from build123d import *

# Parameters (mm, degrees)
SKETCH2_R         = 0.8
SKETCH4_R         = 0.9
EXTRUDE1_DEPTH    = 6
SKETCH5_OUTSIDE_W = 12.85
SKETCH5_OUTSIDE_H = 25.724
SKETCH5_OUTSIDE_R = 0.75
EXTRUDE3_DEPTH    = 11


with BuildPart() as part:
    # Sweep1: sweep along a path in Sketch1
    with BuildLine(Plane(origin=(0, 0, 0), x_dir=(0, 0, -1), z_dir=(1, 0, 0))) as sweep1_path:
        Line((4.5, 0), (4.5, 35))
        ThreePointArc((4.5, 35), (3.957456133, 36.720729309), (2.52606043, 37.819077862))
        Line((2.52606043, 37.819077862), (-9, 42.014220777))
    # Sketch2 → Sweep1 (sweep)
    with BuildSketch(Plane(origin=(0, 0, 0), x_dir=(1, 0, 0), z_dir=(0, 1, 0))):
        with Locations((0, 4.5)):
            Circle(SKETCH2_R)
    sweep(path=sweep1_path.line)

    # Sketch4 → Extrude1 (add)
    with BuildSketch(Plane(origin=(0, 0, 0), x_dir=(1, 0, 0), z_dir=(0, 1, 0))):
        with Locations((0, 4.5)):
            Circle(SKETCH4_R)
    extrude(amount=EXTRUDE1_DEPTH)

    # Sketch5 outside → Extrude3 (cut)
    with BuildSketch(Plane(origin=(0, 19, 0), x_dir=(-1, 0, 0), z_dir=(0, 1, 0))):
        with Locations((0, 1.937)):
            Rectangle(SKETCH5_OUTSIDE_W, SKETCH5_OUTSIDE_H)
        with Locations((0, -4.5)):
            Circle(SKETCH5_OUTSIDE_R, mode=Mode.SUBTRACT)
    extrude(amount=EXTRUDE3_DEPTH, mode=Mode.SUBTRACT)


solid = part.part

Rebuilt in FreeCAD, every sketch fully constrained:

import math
import FreeCAD as App
import Part
import Sketcher

V = App.Vector
Q = App.Units.Quantity

doc = App.newDocument("Part")
body = doc.addObject("PartDesign::Body", "Body")

# Sketch on XZ plane
sketch1 = body.newObject("Sketcher::SketchObject", "Sketch")
sketch1.AttachmentSupport = (doc.getObject("XZ_Plane"), [""])
sketch1.MapMode = "FlatFace"
sketch1.addGeometry(Part.Circle(V(0, -4.5, 0), V(0, 0, 1), 0.8), False)
sketch1.addConstraint([
    Sketcher.Constraint("PointOnObject", 0, 3, -2),
    Sketcher.Constraint("Diameter", 0, Q("1.6 mm")),
    Sketcher.Constraint("DistanceY", 0, 3, -1, 1, Q("4.5 mm")),
])

# Sketch on YZ plane
sketch2 = body.newObject("Sketcher::SketchObject", "Sketch001")
sketch2.AttachmentSupport = (doc.getObject("YZ_Plane"), [""])
sketch2.MapMode = "FlatFace"
sketch2.addGeometry([
    Part.LineSegment(V(0, -4.5, 0), V(35, -4.5, 0)),
    Part.ArcOfCircle(Part.Circle(V(35, -1.5, 0), V(0, 0, 1), 3), math.radians(-90), math.radians(-20)),
    Part.LineSegment(V(37.819078, -2.52606, 0), V(42.014221, 9, 0)),
], False)
sketch2.addConstraint([
    Sketcher.Constraint("Tangent", 0, 2, 1, 1),
    Sketcher.Constraint("Tangent", 1, 2, 2, 1),
    Sketcher.Constraint("Horizontal", 0),
    Sketcher.Constraint("PointOnObject", 0, 1, -2),
    Sketcher.Constraint("Radius", 1, Q("3 mm")),
    Sketcher.Constraint("DistanceX", 0, 1, 0, 2, Q("35 mm")),
    Sketcher.Constraint("Angle", 2, Q("70 deg")),
    Sketcher.Constraint("DistanceY", -1, 1, 2, 2, Q("9 mm")),
    Sketcher.Constraint("DistanceY", 1, 3, -1, 1, Q("1.5 mm")),
])
doc.recompute()

additivepipe = body.newObject("PartDesign::AdditivePipe", "AdditivePipe")
additivepipe.Profile = sketch1
additivepipe.Spine = (sketch2, ["Edge1", "Edge2", "Edge3"])

# Sketch on XZ plane
sketch3 = body.newObject("Sketcher::SketchObject", "Sketch002")
sketch3.AttachmentSupport = (doc.getObject("XZ_Plane"), [""])
sketch3.MapMode = "FlatFace"
sketch3.addGeometry(Part.Circle(V(0, -4.5, 0), V(0, 0, 1), 0.9), False)
sketch3.addConstraint([
    Sketcher.Constraint("PointOnObject", 0, 3, -2),
    Sketcher.Constraint("Diameter", 0, Q("1.8 mm")),
    Sketcher.Constraint("DistanceY", 0, 3, -1, 1, Q("4.5 mm")),
])
pad1 = body.newObject("PartDesign::Pad", "Pad")
pad1.Profile = sketch3
pad1.Length = 6
pad1.Reversed = True

# Sketch on XZ plane
sketch4 = body.newObject("Sketcher::SketchObject", "Sketch003")
sketch4.AttachmentSupport = (doc.getObject("XZ_Plane"), [""])
sketch4.MapMode = "FlatFace"
sketch4.AttachmentOffset = App.Placement(V(0, 0, -19), App.Rotation())
sketch4.addGeometry([
    Part.LineSegment(V(6.425, 14.799, 0), V(6.425, -10.925, 0)),  # 0
    Part.LineSegment(V(6.425, -10.925, 0), V(-6.425, -10.925, 0)),  # 1
    Part.LineSegment(V(-6.425, -10.925, 0), V(-6.425, 14.799, 0)),  # 2
    Part.LineSegment(V(-6.425, 14.799, 0), V(6.425, 14.799, 0)),  # 3
    Part.Circle(V(0, -4.5, 0), V(0, 0, 1), 0.75),  # 4
], False)
sketch4.addConstraint([
    Sketcher.Constraint("Coincident", 0, 2, 1, 1),
    Sketcher.Constraint("Coincident", 1, 2, 2, 1),
    Sketcher.Constraint("Coincident", 2, 2, 3, 1),
    Sketcher.Constraint("Coincident", 3, 2, 0, 1),
    Sketcher.Constraint("Vertical", 0),
    Sketcher.Constraint("Horizontal", 1),
    Sketcher.Constraint("Vertical", 2),
    Sketcher.Constraint("Horizontal", 3),
    Sketcher.Constraint("PointOnObject", 4, 3, -2),
    Sketcher.Constraint("Diameter", 4, Q("1.5 mm")),
    Sketcher.Constraint("DistanceX", 1, 2, 1, 1, Q("12.85 mm")),
    Sketcher.Constraint("DistanceY", 4, 3, -1, 1, Q("4.5 mm")),
    Sketcher.Constraint("DistanceY", 0, 2, 0, 1, Q("25.724 mm")),
    Sketcher.Constraint("DistanceX", -1, 1, 0, 2, Q("6.425 mm")),
    Sketcher.Constraint("DistanceY", 0, 2, -1, 1, Q("10.925 mm")),
])
pocket1 = body.newObject("PartDesign::Pocket", "Pocket")
pocket1.Profile = sketch4
pocket1.Length = 11

doc.recompute()
